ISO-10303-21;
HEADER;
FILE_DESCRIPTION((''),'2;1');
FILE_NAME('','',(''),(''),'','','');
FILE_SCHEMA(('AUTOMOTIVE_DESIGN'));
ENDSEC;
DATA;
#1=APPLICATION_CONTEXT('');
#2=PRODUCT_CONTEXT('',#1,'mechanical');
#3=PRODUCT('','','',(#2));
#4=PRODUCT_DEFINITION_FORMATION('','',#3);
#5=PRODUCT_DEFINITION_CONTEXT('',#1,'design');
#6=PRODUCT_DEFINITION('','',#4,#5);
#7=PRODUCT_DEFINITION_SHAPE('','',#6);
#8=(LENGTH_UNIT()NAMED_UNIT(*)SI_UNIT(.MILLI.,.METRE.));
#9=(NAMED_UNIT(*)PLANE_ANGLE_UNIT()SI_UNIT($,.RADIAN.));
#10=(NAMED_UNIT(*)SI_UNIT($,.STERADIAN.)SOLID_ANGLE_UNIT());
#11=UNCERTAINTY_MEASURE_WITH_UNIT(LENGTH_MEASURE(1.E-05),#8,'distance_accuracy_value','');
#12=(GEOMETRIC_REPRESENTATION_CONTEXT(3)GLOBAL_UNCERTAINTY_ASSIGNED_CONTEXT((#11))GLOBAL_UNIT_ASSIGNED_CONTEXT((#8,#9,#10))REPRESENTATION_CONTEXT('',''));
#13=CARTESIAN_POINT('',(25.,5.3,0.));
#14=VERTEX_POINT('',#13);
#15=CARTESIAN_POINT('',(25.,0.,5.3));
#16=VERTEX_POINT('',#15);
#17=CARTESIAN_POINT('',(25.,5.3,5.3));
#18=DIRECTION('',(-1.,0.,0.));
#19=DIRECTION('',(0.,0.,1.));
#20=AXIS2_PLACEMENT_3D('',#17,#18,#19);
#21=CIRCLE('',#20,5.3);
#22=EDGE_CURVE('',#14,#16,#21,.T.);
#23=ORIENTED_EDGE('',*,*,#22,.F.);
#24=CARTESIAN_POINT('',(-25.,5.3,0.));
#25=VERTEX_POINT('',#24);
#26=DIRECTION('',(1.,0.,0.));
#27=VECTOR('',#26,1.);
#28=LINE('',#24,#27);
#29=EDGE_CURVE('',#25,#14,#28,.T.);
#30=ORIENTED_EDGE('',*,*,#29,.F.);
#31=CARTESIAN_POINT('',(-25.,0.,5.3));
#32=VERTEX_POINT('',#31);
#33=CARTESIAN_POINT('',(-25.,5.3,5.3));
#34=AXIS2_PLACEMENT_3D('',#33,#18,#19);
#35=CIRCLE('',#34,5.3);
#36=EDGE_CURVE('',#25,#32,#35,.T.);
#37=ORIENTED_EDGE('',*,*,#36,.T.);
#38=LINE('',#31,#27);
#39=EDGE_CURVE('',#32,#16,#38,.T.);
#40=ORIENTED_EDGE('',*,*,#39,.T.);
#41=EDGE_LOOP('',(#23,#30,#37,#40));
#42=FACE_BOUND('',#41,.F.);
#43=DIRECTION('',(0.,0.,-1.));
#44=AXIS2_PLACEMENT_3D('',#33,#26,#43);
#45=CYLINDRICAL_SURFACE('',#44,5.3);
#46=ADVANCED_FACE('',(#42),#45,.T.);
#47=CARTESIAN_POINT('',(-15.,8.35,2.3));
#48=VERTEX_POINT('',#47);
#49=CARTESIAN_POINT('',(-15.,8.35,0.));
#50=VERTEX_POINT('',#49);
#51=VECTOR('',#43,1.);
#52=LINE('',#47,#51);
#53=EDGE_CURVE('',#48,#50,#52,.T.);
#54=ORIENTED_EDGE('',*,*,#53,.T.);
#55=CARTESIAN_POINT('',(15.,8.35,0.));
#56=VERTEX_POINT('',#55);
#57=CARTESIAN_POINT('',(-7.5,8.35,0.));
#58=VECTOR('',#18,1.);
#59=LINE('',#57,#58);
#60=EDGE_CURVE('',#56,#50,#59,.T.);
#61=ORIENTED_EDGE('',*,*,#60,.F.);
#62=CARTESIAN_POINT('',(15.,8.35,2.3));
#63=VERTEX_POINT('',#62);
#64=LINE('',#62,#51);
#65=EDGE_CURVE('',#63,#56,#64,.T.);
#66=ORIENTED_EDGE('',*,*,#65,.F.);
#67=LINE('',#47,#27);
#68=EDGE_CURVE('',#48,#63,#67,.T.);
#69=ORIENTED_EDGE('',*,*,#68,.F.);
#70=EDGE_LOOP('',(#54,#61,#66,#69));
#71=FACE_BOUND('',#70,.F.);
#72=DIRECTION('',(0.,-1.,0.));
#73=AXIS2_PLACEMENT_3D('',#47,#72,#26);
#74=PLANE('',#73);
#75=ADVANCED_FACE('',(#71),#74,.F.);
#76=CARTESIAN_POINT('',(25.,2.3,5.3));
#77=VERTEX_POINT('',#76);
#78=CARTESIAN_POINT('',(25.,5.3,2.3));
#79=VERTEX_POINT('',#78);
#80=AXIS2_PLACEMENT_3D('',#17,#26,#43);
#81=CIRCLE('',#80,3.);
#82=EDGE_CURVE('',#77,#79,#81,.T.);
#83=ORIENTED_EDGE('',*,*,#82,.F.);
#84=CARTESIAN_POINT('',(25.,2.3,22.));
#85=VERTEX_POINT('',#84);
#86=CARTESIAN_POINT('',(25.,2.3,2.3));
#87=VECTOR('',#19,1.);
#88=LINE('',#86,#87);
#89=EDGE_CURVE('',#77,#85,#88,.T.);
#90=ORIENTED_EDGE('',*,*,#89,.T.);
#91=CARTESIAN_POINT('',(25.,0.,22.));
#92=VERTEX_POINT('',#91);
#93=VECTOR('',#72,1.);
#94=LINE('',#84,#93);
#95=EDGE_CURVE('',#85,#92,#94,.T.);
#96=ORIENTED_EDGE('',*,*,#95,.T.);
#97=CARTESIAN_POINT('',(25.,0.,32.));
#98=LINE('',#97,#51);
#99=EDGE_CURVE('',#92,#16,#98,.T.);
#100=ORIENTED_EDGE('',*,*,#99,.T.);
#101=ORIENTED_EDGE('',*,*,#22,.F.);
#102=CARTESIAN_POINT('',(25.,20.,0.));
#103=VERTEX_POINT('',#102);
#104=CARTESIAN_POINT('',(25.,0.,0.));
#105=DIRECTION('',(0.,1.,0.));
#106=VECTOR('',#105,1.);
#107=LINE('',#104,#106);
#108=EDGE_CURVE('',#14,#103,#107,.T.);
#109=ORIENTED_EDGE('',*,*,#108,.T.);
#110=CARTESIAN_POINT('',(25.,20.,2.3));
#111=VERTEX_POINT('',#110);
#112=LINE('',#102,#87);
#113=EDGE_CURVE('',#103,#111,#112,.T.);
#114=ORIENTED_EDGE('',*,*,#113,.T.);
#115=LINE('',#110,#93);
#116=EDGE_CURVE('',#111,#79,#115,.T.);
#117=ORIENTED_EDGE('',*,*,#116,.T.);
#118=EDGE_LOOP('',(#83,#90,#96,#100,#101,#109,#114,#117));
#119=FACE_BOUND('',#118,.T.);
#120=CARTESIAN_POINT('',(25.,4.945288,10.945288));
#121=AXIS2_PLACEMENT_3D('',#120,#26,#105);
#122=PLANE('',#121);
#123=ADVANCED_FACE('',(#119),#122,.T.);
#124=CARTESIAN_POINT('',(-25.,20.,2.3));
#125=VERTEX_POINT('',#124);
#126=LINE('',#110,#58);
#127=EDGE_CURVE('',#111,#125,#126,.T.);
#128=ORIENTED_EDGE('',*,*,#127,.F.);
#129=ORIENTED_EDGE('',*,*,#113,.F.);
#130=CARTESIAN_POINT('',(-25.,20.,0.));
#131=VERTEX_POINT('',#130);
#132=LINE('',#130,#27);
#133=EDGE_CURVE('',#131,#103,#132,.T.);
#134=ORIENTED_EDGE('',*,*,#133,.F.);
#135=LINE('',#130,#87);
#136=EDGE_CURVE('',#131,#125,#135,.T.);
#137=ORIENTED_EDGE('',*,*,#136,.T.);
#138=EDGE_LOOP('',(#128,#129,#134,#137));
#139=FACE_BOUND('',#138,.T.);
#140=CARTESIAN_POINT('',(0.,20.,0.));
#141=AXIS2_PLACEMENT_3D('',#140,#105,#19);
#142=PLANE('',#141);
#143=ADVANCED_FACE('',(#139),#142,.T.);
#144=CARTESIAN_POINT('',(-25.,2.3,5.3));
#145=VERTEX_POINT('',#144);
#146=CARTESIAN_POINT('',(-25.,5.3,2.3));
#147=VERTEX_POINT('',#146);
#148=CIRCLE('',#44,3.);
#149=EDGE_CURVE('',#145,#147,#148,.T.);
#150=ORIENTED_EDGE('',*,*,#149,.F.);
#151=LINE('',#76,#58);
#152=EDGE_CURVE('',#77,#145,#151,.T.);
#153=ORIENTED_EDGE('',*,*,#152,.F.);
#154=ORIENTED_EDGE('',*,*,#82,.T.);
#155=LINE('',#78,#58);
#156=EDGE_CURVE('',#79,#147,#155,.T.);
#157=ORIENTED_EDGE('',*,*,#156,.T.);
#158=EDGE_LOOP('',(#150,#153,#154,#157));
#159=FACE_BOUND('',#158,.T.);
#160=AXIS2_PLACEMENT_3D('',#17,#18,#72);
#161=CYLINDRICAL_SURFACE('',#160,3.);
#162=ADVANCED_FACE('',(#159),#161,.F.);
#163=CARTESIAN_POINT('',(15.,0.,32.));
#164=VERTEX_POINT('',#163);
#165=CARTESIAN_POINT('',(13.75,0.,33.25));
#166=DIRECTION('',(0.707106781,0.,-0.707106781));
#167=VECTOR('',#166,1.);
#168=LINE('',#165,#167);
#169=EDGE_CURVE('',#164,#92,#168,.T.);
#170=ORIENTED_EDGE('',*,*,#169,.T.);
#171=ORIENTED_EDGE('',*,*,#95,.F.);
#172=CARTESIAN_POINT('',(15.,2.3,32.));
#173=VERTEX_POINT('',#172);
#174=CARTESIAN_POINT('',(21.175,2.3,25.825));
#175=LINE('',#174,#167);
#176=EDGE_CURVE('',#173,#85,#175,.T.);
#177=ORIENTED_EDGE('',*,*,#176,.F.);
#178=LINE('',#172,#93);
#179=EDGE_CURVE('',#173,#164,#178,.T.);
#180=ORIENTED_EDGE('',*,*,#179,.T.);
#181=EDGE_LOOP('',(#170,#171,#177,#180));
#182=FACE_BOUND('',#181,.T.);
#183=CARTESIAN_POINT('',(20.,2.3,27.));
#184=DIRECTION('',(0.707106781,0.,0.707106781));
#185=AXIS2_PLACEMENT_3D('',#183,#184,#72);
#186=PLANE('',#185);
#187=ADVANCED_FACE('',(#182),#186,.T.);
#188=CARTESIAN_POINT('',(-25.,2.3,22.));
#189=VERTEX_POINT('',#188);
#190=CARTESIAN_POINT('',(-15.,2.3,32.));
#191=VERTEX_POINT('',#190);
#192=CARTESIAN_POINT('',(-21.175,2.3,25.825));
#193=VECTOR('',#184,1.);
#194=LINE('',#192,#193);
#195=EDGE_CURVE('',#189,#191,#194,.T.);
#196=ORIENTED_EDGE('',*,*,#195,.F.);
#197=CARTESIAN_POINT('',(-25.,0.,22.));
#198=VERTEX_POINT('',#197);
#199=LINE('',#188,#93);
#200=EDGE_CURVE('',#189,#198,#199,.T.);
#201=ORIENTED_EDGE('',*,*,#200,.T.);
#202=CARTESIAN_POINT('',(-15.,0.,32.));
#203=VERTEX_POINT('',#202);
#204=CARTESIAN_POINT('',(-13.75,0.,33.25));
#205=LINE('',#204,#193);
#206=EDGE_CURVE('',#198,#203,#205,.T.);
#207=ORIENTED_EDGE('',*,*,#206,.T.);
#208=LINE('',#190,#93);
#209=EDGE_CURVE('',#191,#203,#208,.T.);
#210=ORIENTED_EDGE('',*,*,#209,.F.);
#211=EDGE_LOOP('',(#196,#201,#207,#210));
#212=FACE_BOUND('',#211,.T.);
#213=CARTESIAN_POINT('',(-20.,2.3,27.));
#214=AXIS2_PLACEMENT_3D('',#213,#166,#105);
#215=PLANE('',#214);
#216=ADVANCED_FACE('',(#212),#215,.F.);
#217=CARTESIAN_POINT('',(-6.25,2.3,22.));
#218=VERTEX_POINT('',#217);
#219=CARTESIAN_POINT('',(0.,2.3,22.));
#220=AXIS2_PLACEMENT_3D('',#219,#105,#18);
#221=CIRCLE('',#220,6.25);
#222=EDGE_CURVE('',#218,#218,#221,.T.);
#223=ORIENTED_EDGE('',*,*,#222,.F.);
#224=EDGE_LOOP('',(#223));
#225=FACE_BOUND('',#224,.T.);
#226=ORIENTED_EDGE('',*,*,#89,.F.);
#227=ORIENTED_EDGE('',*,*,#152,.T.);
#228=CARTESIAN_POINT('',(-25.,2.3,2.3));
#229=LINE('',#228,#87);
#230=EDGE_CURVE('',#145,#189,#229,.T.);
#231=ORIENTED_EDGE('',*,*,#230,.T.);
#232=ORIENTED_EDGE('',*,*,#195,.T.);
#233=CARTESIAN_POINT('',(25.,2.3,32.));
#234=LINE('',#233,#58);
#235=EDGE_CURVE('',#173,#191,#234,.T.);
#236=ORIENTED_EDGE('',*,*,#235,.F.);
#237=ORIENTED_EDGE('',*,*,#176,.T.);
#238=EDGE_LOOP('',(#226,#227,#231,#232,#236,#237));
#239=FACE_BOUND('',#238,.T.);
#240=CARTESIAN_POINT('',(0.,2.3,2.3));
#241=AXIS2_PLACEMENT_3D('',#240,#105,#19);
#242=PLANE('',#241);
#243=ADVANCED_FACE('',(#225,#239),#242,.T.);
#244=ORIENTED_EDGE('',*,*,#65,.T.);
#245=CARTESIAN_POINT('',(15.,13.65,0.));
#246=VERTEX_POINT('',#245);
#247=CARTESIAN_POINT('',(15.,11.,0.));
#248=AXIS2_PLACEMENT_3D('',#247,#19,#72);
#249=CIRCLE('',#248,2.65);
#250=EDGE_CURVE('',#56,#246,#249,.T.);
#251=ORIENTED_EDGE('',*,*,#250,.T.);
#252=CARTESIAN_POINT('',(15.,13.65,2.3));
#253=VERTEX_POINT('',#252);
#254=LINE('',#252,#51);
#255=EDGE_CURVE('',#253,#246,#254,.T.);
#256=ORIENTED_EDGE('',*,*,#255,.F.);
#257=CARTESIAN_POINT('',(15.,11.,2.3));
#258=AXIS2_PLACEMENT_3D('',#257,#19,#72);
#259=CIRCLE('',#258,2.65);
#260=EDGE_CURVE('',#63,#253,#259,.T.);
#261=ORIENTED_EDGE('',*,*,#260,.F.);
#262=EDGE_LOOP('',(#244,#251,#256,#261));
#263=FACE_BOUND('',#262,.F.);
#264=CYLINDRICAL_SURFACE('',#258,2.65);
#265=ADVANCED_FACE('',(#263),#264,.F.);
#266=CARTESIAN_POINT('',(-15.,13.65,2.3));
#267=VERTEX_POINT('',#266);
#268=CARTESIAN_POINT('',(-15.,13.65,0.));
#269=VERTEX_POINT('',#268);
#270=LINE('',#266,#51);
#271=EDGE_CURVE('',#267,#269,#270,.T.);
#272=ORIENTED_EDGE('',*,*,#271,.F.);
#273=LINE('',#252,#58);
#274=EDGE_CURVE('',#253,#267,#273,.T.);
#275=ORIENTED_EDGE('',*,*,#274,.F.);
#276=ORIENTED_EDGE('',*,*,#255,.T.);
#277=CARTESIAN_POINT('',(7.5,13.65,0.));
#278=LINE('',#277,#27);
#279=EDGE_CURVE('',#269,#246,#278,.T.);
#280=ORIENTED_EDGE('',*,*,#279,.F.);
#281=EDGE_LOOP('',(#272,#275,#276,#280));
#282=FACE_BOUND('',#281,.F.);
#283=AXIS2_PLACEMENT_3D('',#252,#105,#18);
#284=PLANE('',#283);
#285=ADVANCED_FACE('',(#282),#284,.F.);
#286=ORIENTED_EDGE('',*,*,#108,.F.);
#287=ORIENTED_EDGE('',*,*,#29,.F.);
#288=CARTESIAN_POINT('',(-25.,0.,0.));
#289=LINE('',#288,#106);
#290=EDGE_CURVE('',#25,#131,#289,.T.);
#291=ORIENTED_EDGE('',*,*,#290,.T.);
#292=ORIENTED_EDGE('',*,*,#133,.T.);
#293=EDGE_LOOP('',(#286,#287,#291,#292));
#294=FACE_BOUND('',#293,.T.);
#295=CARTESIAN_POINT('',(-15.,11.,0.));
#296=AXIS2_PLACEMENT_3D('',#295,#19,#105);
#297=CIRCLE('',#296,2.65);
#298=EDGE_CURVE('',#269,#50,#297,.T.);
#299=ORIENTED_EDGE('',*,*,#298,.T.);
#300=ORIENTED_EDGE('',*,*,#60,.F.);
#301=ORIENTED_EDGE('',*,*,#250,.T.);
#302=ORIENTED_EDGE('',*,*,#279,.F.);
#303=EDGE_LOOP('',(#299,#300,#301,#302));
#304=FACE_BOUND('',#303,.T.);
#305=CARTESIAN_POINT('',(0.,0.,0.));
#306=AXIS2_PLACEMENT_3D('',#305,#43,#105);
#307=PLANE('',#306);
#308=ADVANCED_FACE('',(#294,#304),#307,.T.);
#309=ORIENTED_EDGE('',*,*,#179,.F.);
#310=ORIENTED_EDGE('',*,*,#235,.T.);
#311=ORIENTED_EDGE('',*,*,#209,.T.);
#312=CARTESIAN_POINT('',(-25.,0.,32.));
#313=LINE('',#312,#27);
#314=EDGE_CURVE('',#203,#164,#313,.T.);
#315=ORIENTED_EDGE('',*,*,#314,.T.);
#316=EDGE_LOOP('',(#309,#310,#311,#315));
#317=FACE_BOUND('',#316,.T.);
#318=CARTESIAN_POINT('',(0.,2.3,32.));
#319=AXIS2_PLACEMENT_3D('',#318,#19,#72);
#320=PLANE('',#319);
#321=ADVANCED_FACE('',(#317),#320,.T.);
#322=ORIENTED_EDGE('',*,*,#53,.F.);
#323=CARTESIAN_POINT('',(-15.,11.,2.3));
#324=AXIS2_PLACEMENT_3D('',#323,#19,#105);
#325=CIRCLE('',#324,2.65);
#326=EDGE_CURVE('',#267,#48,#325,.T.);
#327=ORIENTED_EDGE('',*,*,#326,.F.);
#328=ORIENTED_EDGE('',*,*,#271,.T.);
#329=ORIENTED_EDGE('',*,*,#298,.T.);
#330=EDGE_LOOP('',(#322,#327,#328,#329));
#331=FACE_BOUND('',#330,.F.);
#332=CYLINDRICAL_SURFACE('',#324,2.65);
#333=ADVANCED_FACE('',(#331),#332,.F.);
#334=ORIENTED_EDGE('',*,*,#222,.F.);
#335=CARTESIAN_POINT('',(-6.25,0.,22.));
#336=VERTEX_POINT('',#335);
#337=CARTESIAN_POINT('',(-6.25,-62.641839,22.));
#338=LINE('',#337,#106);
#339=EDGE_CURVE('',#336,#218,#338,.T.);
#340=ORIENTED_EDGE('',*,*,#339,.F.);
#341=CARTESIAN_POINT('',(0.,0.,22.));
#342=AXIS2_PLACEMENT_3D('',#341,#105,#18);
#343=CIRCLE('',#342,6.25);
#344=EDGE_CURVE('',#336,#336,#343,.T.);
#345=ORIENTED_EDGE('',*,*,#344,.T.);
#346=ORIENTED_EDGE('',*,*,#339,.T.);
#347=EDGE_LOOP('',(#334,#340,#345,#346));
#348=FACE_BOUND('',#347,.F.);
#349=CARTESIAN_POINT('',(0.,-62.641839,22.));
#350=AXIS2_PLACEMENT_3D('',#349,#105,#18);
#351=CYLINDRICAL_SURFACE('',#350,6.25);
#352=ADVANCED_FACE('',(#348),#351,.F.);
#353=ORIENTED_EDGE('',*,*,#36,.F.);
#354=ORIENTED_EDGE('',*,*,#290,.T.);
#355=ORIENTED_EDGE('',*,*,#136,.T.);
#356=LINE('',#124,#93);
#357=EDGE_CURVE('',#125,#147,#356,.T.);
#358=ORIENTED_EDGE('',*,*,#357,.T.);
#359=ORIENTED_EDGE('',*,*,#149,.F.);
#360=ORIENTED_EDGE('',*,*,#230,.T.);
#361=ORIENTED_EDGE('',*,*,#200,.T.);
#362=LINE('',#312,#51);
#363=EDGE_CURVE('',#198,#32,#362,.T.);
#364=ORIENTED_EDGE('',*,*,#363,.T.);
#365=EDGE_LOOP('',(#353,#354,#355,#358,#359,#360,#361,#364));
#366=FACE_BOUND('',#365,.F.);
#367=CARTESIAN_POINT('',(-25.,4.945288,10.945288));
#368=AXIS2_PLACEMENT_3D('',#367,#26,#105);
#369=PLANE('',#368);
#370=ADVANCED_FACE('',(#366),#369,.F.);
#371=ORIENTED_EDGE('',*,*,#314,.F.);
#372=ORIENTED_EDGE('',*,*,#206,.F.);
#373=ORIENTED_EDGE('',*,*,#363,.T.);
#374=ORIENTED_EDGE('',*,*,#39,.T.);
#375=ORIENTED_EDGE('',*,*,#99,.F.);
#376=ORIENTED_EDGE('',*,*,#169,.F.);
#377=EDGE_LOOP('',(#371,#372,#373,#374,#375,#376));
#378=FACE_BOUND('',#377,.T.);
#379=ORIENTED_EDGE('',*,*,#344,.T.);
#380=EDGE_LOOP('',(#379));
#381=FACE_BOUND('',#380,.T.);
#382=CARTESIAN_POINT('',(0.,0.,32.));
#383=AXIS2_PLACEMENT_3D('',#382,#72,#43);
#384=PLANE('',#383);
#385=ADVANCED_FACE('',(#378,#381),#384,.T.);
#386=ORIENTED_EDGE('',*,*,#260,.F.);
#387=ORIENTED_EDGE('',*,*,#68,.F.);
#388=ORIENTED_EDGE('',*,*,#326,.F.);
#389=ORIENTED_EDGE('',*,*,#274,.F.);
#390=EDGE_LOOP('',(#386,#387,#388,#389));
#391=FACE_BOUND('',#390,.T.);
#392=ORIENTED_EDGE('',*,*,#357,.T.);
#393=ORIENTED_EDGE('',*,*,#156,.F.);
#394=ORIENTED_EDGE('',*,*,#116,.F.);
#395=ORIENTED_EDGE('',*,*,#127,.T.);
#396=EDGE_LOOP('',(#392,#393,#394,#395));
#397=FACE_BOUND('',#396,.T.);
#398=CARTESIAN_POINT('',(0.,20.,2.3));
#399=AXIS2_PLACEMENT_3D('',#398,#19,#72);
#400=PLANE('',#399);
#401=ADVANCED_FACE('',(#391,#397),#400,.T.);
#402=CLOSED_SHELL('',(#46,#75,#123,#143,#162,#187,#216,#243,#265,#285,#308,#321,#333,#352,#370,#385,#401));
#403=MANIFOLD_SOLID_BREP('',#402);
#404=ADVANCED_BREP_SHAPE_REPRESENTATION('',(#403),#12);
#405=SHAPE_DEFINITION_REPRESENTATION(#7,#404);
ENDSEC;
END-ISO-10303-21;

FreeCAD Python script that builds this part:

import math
import FreeCAD as App
import Part
import Sketcher
Q = App.Units.Quantity


def edges_at(feature, points):
    """Names of the edges that pass closest to the given points."""
    edges = feature.Shape.Edges
    near = lambda p: min(range(len(edges)), key=lambda i: edges[i].distToShape(Part.Vertex(*p))[0])
    return sorted({f"Edge{near(p) + 1}" for p in points})


def add_polygon(sketch, points):
    """Adds a closed chain of lines whose ends are joined by coincident constraints."""
    first, n = sketch.GeometryCount, len(points)
    for a, b in zip(points, points[1:] + points[:1]):
        sketch.addGeometry(Part.LineSegment(App.Vector(*a, 0), App.Vector(*b, 0)), False)
    for i in range(n):
        sketch.addConstraint(Sketcher.Constraint("Coincident", first + i, 2, first + (i + 1) % n, 1))

doc = App.newDocument("Part")
body = doc.addObject("PartDesign::Body", "Body")

# Sketch on YZ plane
sketch1 = doc.addObject("Sketcher::SketchObject", "Sketch")
body.addObject(sketch1)
sketch1.AttachmentSupport = (doc.YZ_Plane, [""])
sketch1.MapMode = "FlatFace"
add_polygon(sketch1, [(2.3, 32), (0, 32), (0, 0), (20, 0), (20, 2.3), (2.3, 2.3)])  # lines 0-5
sketch1.addConstraint([
    Sketcher.Constraint("Horizontal", 0),
    Sketcher.Constraint("Vertical", 1),
    Sketcher.Constraint("Horizontal", 2),
    Sketcher.Constraint("Vertical", 3),
    Sketcher.Constraint("Horizontal", 4),
    Sketcher.Constraint("Vertical", 5),
    Sketcher.Constraint("Coincident", 1, 2, -1, 1),
    Sketcher.Constraint("Equal", 0, 3),
    Sketcher.Constraint("DistanceX", 2, 1, 2, 2, Q("20 mm")),
    Sketcher.Constraint("DistanceY", 1, 2, 1, 1, Q("32 mm")),
    Sketcher.Constraint("DistanceX", 0, 2, 0, 1, Q("2.3 mm")),
])
pad1 = doc.addObject("PartDesign::Pad", "Pad")
body.addObject(pad1)
pad1.Profile = sketch1
pad1.Type = "TwoLengths"
pad1.Length = 25
pad1.Length2 = 25

# Sketch on XY plane
sketch2 = doc.addObject("Sketcher::SketchObject", "Sketch001")
body.addObject(sketch2)
sketch2.AttachmentSupport = (doc.XY_Plane, [""])
sketch2.MapMode = "FlatFace"
sketch2.AttachmentOffset = App.Placement(App.Vector(0, 0, 2.3), App.Rotation())
sketch2.addGeometry([
    Part.LineSegment(App.Vector(-15, 8.3, 0), App.Vector(15, 8.3, 0)),
    Part.ArcOfCircle(Part.Circle(App.Vector(15, 11, 0), App.Vector(0, 0, 1), 2.6), math.radians(-90), math.radians(90)),
    Part.LineSegment(App.Vector(15, 13.7, 0), App.Vector(-15, 13.7, 0)),
    Part.ArcOfCircle(Part.Circle(App.Vector(-15, 11, 0), App.Vector(0, 0, 1), 2.6), math.radians(90), math.radians(270)),
], False)
sketch2.addConstraint([
    Sketcher.Constraint("Tangent", 0, 2, 1, 1),
    Sketcher.Constraint("Tangent", 1, 2, 2, 1),
    Sketcher.Constraint("Tangent", 2, 2, 3, 1),
    Sketcher.Constraint("Tangent", 3, 2, 0, 1),
    Sketcher.Constraint("Horizontal", 0),
    Sketcher.Constraint("Horizontal", 2),
    Sketcher.Constraint("DistanceX", 0, 1, 0, 2, Q("30 mm")),
    Sketcher.Constraint("Radius", 1, Q("2.65 mm")),
    Sketcher.Constraint("DistanceX", -1, 1, 1, 3, Q("15 mm")),
    Sketcher.Constraint("DistanceY", -1, 1, 1, 3, Q("11 mm")),
])
pocket1 = doc.addObject("PartDesign::Pocket", "Pocket")
body.addObject(pocket1)
pocket1.Profile = sketch2
pocket1.Type = "ThroughAll"
doc.recompute()

fillet = doc.addObject("PartDesign::Fillet", "Fillet")
body.addObject(fillet)
fillet.Base = (pocket1, edges_at(pocket1, [(0, 2.3, 2.3)]))
fillet.Radius = 3
doc.recompute()

fillet2 = doc.addObject("PartDesign::Fillet", "Fillet001")
body.addObject(fillet2)
fillet2.Base = (fillet, edges_at(fillet, [(0, 0, 0)]))
fillet2.Radius = 5.3

# Sketch on XZ plane
sketch3 = doc.addObject("Sketcher::SketchObject", "Sketch002")
body.addObject(sketch3)
sketch3.AttachmentSupport = (doc.XZ_Plane, [""])
sketch3.MapMode = "FlatFace"
sketch3.addGeometry(Part.Circle(App.Vector(0, 22, 0), App.Vector(0, 0, 1), 6), False)
sketch3.addConstraint([
    Sketcher.Constraint("PointOnObject", 0, 3, -2),
    Sketcher.Constraint("Diameter", 0, Q("12.5 mm")),
    Sketcher.Constraint("DistanceY", -1, 1, 0, 3, Q("22 mm")),
])
doc.recompute()
hole = doc.addObject("PartDesign::Hole", "Hole")
body.addObject(hole)
hole.Profile = sketch3
hole.ThreadType = "None"
hole.Diameter = 12.5
hole.DepthType = "ThroughAll"
doc.recompute()

chamfer = doc.addObject("PartDesign::Chamfer", "Chamfer")
body.addObject(chamfer)
chamfer.Base = (hole, edges_at(hole, [(25, 1.15, 32), (-25, 1.15, 32)]))
chamfer.Size = 10

doc.recompute()
